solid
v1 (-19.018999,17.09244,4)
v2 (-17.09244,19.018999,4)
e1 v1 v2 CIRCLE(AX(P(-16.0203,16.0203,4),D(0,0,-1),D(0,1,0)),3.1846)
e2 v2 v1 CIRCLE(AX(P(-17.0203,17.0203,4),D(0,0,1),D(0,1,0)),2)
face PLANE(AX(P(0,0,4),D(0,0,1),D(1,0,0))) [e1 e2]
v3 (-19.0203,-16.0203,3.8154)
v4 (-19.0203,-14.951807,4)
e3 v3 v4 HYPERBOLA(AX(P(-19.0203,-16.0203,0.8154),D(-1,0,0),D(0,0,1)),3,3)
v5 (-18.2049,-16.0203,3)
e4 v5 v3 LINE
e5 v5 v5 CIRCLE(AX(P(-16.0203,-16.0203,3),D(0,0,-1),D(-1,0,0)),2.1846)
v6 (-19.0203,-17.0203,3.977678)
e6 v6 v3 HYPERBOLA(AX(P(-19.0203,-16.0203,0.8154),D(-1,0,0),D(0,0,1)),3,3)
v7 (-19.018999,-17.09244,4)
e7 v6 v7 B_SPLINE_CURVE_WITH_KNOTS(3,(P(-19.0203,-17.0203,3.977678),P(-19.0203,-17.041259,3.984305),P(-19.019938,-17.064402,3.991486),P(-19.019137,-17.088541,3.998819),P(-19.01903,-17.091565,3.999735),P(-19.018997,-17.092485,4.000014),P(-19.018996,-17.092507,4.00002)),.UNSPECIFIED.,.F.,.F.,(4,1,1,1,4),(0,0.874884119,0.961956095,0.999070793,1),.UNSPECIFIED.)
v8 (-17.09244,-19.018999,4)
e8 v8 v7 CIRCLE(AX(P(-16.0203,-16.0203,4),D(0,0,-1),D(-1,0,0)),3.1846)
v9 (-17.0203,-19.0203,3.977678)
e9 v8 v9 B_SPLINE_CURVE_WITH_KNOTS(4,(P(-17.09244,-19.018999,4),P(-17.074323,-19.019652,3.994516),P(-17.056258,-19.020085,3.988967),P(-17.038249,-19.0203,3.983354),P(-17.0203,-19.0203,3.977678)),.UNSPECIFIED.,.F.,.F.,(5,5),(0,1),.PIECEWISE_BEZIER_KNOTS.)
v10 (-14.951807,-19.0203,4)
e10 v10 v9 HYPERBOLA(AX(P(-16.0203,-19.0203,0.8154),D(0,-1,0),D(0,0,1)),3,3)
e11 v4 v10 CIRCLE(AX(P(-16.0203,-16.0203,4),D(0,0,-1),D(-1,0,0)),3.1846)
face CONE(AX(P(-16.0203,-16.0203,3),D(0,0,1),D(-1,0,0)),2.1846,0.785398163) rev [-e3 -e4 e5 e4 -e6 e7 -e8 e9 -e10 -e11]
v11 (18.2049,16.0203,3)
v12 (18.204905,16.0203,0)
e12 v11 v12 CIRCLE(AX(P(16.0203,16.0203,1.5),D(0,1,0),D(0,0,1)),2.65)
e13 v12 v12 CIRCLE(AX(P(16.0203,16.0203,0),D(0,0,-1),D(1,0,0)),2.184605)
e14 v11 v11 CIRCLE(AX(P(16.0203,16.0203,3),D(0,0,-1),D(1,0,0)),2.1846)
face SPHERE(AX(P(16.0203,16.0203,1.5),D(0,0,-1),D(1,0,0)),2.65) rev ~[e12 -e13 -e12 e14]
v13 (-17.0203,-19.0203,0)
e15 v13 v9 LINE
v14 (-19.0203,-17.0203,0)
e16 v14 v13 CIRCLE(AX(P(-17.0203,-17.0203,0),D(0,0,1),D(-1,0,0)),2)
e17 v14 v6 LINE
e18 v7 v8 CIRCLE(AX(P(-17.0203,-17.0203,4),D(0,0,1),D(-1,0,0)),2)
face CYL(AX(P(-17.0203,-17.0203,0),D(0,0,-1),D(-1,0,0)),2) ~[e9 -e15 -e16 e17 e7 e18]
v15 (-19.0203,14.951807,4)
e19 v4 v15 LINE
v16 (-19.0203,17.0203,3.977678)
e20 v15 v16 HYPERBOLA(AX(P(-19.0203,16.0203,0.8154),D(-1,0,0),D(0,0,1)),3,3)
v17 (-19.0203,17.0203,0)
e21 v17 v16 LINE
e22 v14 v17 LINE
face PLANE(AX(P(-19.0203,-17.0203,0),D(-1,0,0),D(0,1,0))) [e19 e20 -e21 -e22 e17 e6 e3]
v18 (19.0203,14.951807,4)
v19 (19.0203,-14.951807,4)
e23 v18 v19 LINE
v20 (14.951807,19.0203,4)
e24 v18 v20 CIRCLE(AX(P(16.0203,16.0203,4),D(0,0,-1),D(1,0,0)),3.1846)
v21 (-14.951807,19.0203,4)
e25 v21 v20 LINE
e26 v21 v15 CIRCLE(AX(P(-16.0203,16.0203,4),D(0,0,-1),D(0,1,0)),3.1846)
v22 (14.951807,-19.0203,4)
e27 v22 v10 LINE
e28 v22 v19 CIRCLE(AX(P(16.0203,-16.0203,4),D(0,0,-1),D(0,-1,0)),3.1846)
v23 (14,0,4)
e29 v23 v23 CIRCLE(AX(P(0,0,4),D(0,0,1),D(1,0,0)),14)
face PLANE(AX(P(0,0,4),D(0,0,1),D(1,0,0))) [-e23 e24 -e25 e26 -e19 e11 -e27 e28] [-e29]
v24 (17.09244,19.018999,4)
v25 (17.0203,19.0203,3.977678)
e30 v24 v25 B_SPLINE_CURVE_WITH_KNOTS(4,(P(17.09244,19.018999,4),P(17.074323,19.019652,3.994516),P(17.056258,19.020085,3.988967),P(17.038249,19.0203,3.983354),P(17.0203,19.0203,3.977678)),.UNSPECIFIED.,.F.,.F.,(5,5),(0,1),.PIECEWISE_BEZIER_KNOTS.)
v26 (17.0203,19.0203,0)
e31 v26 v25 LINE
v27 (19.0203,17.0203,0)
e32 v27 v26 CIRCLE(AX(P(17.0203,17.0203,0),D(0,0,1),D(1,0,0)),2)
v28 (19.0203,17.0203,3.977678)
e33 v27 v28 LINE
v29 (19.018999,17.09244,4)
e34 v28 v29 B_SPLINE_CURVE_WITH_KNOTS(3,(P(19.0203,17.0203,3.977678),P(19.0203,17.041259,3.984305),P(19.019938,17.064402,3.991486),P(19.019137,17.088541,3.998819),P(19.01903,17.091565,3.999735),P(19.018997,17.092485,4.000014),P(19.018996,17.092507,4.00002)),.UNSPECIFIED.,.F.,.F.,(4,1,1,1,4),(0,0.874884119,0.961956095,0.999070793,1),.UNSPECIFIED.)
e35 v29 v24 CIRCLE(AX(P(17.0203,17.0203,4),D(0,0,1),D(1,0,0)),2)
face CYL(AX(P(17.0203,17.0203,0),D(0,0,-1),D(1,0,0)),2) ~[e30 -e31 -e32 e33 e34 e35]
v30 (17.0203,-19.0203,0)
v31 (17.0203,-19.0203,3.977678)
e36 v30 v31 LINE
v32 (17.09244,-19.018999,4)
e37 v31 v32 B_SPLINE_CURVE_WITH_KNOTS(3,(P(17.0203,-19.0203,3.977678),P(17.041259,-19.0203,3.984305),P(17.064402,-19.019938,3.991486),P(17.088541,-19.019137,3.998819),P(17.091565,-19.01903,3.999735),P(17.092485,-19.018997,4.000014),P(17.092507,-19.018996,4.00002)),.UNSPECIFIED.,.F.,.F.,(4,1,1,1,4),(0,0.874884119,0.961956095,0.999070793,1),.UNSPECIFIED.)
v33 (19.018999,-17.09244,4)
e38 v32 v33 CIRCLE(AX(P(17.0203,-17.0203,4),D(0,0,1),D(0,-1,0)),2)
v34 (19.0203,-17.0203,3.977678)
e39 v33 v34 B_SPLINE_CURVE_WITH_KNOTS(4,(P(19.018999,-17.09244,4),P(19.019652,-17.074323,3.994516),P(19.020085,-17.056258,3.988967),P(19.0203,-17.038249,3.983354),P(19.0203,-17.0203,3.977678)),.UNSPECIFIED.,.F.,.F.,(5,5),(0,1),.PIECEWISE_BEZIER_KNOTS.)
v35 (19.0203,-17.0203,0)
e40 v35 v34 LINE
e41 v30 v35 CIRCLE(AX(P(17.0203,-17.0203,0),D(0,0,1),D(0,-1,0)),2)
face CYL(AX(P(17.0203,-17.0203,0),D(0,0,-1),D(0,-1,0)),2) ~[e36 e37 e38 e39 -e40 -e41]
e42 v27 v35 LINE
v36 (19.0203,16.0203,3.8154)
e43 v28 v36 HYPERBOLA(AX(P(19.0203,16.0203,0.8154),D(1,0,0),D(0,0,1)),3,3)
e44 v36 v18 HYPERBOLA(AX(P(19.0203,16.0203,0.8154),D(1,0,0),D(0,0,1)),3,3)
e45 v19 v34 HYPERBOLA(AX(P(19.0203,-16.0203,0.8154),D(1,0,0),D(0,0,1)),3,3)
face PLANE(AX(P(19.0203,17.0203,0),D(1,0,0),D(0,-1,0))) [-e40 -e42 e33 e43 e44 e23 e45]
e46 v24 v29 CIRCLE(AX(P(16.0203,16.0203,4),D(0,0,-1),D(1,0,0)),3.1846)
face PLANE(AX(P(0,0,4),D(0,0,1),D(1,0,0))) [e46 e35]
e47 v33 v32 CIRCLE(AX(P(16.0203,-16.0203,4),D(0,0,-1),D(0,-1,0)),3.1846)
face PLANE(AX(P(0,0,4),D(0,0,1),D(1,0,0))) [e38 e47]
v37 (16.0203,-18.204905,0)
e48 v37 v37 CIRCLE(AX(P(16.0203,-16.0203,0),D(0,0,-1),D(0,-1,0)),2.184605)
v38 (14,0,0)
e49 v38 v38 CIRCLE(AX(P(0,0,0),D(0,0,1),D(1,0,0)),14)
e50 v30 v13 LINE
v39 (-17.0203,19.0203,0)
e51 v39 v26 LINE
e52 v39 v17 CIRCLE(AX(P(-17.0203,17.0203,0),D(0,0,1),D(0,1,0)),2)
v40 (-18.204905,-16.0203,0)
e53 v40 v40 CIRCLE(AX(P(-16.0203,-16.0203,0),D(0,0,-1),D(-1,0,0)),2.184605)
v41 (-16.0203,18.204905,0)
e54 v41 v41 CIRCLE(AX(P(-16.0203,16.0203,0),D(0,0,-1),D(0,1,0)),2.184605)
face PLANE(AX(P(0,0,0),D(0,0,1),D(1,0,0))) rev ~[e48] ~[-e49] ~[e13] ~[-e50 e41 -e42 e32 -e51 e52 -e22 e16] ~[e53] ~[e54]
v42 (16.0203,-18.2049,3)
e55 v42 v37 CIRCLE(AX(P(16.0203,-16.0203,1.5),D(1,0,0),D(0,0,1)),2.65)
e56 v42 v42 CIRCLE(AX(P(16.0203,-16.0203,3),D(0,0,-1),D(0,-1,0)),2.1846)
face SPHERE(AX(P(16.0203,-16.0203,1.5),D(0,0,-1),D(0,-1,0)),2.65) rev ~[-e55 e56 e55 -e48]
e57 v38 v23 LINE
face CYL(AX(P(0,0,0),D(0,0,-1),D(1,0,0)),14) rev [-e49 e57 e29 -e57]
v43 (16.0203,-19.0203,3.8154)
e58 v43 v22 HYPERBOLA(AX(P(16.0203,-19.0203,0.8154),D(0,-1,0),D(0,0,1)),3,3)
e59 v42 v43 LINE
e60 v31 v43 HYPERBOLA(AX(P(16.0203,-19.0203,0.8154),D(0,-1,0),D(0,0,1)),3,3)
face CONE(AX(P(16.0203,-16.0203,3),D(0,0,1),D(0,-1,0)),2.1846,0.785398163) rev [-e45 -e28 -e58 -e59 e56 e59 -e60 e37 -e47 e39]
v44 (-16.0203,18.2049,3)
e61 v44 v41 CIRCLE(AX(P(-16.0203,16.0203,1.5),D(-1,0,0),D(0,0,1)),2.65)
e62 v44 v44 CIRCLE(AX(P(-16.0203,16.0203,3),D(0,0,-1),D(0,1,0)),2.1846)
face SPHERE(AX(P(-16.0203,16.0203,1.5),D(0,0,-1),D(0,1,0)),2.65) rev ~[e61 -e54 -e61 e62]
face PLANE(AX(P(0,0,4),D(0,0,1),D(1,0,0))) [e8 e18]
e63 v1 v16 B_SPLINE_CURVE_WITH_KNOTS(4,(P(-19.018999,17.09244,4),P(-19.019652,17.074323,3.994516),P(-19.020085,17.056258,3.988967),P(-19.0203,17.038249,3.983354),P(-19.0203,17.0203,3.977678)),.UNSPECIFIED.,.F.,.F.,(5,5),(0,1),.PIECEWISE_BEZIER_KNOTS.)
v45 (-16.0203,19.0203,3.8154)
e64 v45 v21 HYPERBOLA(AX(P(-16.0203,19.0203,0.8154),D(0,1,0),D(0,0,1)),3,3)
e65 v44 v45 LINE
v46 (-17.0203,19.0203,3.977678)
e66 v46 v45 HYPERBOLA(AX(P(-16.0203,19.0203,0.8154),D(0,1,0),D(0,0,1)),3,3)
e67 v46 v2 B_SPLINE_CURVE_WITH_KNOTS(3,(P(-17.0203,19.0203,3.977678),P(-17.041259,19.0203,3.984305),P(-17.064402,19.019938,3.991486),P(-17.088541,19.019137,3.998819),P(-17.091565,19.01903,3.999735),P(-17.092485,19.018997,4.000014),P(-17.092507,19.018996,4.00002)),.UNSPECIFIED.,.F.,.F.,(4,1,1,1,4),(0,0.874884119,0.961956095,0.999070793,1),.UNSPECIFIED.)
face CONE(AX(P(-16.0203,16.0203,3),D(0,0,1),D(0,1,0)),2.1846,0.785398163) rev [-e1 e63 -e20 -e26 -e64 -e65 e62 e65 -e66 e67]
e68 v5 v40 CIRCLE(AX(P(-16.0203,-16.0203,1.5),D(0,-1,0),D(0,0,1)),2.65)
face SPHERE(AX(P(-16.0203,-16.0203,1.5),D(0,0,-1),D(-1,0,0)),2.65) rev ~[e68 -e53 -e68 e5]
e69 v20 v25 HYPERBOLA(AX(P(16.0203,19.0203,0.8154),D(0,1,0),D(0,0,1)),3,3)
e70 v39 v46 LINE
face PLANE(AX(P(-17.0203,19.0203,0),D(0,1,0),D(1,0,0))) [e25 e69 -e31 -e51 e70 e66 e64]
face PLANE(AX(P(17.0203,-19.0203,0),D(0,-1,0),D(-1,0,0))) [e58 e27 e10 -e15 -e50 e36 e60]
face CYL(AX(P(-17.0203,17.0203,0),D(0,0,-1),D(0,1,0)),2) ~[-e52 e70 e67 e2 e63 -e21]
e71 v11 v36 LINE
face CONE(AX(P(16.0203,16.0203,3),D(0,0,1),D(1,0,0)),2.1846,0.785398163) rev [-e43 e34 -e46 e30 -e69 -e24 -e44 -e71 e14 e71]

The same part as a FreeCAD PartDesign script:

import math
import FreeCAD as App
import Part
import Sketcher

V = App.Vector
Q = App.Units.Quantity

doc = App.newDocument("Part")
body = doc.addObject("PartDesign::Body", "Body")

# Sketch on XY plane
sketch1 = body.newObject("Sketcher::SketchObject", "Sketch")
sketch1.AttachmentSupport = (doc.getObject("XY_Plane"), [""])
sketch1.MapMode = "FlatFace"
sketch1.addGeometry([
    Part.LineSegment(V(-17, -19, 0), V(17, -19, 0)),  # 0
    Part.ArcOfCircle(Part.Circle(V(17, -17, 0), V(0, 0, 1), 2), math.radians(-90), math.radians(0)),  # 1
    Part.LineSegment(V(19, -17, 0), V(19, 17, 0)),  # 2
    Part.ArcOfCircle(Part.Circle(V(17, 17, 0), V(0, 0, 1), 2), math.radians(0), math.radians(90)),  # 3
    Part.LineSegment(V(17, 19, 0), V(-17, 19, 0)),  # 4
    Part.ArcOfCircle(Part.Circle(V(-17, 17, 0), V(0, 0, 1), 2), math.radians(90), math.radians(180)),  # 5
    Part.LineSegment(V(-19, 17, 0), V(-19, -17, 0)),  # 6
    Part.ArcOfCircle(Part.Circle(V(-17, -17, 0), V(0, 0, 1), 2), math.radians(180), math.radians(270)),  # 7
    Part.Circle(V(0, 0, 0), V(0, 0, 1), 14),  # 8
], False)
sketch1.addConstraint([
    Sketcher.Constraint("Tangent", 0, 2, 1, 1),
    Sketcher.Constraint("Tangent", 1, 2, 2, 1),
    Sketcher.Constraint("Tangent", 2, 2, 3, 1),
    Sketcher.Constraint("Tangent", 3, 2, 4, 1),
    Sketcher.Constraint("Tangent", 4, 2, 5, 1),
    Sketcher.Constraint("Tangent", 5, 2, 6, 1),
    Sketcher.Constraint("Tangent", 6, 2, 7, 1),
    Sketcher.Constraint("Tangent", 7, 2, 0, 1),
    Sketcher.Constraint("Horizontal", 0),
    Sketcher.Constraint("Vertical", 2),
    Sketcher.Constraint("Horizontal", 4),
    Sketcher.Constraint("Vertical", 6),
    Sketcher.Constraint("Coincident", 8, 3, -1, 1),
    Sketcher.Constraint("Equal", 1, 3),
    Sketcher.Constraint("Equal", 3, 5),
    Sketcher.Constraint("Equal", 5, 7),
    Sketcher.Constraint("Symmetric", 1, 3, 5, 3, -1, 1),
    Sketcher.Constraint("Equal", 4, 2),
    Sketcher.Constraint("Diameter", 8, Q("28 mm")),
    Sketcher.Constraint("Radius", 1, Q("2 mm")),
    Sketcher.Constraint("DistanceX", 0, 1, 0, 2, Q("34.0406 mm")),
])
pad1 = body.newObject("PartDesign::Pad", "Pad")
pad1.Profile = sketch1
pad1.Length = 4

# Sketch on XZ plane
sketch2 = body.newObject("Sketcher::SketchObject", "Sketch001")
sketch2.AttachmentSupport = (doc.getObject("XZ_Plane"), [""])
sketch2.MapMode = "FlatFace"
sketch2.AttachmentOffset = App.Placement(V(0, 0, -16.0203), App.Rotation())
sketch2.addGeometry([
    Part.LineSegment(V(16, 4, 0), V(19.2, 4, 0)),
    Part.LineSegment(V(19.2, 4, 0), V(18.2, 3, 0)),
    Part.ArcOfCircle(Part.Circle(V(16, 1.5, 0), V(0, 0, 1), 2.7), math.radians(-90), math.radians(34)),
    Part.LineSegment(V(16, -1.1, 0), V(16, 4, 0)),
], False)
sketch2.addGeometry(Part.LineSegment(V(16, 4, 0), V(16, -1.1, 0)), True)  # axis
sketch2.addConstraint([
    Sketcher.Constraint("Coincident", 0, 2, 1, 1),
    Sketcher.Constraint("Coincident", 1, 2, 2, 2),
    Sketcher.Constraint("Coincident", 2, 1, 3, 1),
    Sketcher.Constraint("Coincident", 3, 2, 0, 1),
    Sketcher.Constraint("Horizontal", 0),
    Sketcher.Constraint("Vertical", 3),
    Sketcher.Constraint("Vertical", 4),
    Sketcher.Constraint("Coincident", 4, 1, 3, 2),
    Sketcher.Constraint("Equal", 3, 4),
    Sketcher.Constraint("Angle", 1, Q("-135 deg")),
    Sketcher.Constraint("Radius", 2, Q("2.65 mm")),
    Sketcher.Constraint("DistanceY", -1, 1, 1, 2, Q("3 mm")),
    Sketcher.Constraint("DistanceY", -1, 1, 2, 3, Q("1.5 mm")),
    Sketcher.Constraint("DistanceY", 2, 3, 0, 2, Q("2.5 mm")),
    Sketcher.Constraint("DistanceX", 0, 1, 0, 2, Q("3.1846 mm")),
    Sketcher.Constraint("DistanceX", -1, 1, 0, 2, Q("19.205 mm")),
])
groove = body.newObject("PartDesign::Groove", "Groove")
groove.Profile = sketch2
groove.ReferenceAxis = (sketch2, ["Axis0"])
groove.Angle = 360
doc.recompute()

polarpattern = body.newObject("PartDesign::PolarPattern", "PolarPattern")
polarpattern.Originals = [groove]
polarpattern.Axis = (doc.getObject("Z_Axis"), [""])
polarpattern.Angle = 360
polarpattern.Occurrences = 4
body.Tip = polarpattern

doc.recompute()
